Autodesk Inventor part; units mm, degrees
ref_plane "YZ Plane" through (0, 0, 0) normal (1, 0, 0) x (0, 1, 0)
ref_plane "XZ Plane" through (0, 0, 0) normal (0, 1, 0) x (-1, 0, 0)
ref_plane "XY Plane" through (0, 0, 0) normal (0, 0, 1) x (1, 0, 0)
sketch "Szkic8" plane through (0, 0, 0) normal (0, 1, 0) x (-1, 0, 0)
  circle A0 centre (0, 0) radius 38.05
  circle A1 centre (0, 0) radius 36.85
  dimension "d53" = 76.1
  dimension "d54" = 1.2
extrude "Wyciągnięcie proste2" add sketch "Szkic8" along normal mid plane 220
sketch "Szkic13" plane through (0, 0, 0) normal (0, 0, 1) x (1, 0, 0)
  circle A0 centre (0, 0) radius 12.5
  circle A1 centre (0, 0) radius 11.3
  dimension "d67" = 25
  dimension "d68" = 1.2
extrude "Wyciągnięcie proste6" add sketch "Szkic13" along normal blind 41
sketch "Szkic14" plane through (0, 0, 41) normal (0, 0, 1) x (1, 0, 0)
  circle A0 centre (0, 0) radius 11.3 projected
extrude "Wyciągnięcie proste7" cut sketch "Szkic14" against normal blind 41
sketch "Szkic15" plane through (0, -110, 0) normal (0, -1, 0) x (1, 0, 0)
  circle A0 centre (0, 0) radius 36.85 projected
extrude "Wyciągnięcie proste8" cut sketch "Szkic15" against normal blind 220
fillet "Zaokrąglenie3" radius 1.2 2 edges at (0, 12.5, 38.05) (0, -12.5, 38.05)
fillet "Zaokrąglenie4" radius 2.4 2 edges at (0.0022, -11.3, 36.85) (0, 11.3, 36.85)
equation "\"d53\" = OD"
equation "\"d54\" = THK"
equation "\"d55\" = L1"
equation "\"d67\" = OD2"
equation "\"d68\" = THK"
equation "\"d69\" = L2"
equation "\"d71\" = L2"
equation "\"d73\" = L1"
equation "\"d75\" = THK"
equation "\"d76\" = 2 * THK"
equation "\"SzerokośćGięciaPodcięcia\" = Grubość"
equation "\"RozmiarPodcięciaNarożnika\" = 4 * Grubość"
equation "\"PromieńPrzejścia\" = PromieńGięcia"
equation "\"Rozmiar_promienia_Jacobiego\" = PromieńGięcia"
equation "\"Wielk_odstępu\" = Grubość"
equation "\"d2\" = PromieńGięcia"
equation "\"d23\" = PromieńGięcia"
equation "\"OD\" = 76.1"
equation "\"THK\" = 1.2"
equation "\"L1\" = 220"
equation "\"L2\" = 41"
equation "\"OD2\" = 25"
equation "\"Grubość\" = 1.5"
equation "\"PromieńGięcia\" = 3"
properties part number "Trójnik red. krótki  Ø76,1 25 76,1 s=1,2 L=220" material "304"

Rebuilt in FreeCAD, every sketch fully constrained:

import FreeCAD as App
import Part
import Sketcher


def edges_at(feature, points):
    """Names of the edges that pass closest to the given points."""
    edges = feature.Shape.Edges
    near = lambda p: min(range(len(edges)), key=lambda i: edges[i].distToShape(Part.Vertex(*p))[0])
    return sorted({f"Edge{near(p) + 1}" for p in points})

doc = App.newDocument("Part")
body = doc.addObject("PartDesign::Body", "Body")

sketch1 = body.newObject("Sketcher::SketchObject", "Sketch")
sketch1.AttachmentSupport = (doc.getObject("XZ_Plane"), [""])
sketch1.MapMode = "FlatFace"
sketch1.addGeometry([
    Part.Circle(App.Vector(0, 0, 0), App.Vector(0, 0, 1), 38),
    Part.Circle(App.Vector(0, 0, 0), App.Vector(0, 0, 1), 37),
], False)
sketch1.addConstraint([
    Sketcher.Constraint("Coincident", 0, 3, -1, 1),
    Sketcher.Constraint("Coincident", 1, 3, -1, 1),
    Sketcher.Constraint("Diameter", 0, 76.1),
    Sketcher.Constraint("Diameter", 1, 73.7),
])
pad1 = body.newObject("PartDesign::Pad", "Pad")
pad1.Profile = sketch1
pad1.Length = 220
pad1.Midplane = True

sketch2 = body.newObject("Sketcher::SketchObject", "Sketch001")
sketch2.AttachmentSupport = (doc.getObject("XY_Plane"), [""])
sketch2.MapMode = "FlatFace"
sketch2.addGeometry([
    Part.Circle(App.Vector(0, 0, 0), App.Vector(0, 0, 1), 12),
    Part.Circle(App.Vector(0, 0, 0), App.Vector(0, 0, 1), 11),
], False)
sketch2.addConstraint([
    Sketcher.Constraint("Coincident", 0, 3, -1, 1),
    Sketcher.Constraint("Coincident", 1, 3, -1, 1),
    Sketcher.Constraint("Diameter", 0, 25.0),
    Sketcher.Constraint("Diameter", 1, 22.6),
])
pad2 = body.newObject("PartDesign::Pad", "Pad001")
pad2.Profile = sketch2
pad2.Length = 41

sketch3 = body.newObject("Sketcher::SketchObject", "Sketch002")
sketch3.AttachmentSupport = (doc.getObject("XY_Plane"), [""])
sketch3.MapMode = "FlatFace"
sketch3.AttachmentOffset = App.Placement(App.Vector(0, 0, 41), App.Rotation())
sketch3.addGeometry(Part.Circle(App.Vector(0, 0, 0), App.Vector(0, 0, 1), 11), False)
sketch3.addConstraint([
    Sketcher.Constraint("Coincident", 0, 3, -1, 1),
    Sketcher.Constraint("Diameter", 0, 22.6),
])
pocket1 = body.newObject("PartDesign::Pocket", "Pocket")
pocket1.Profile = sketch3
pocket1.Length = 41

sketch4 = body.newObject("Sketcher::SketchObject", "Sketch003")
sketch4.AttachmentSupport = (doc.getObject("XZ_Plane"), [""])
sketch4.MapMode = "FlatFace"
sketch4.AttachmentOffset = App.Placement(App.Vector(0, 0, 110), App.Rotation())
sketch4.addGeometry(Part.Circle(App.Vector(0, 0, 0), App.Vector(0, 0, 1), 37), False)
sketch4.addConstraint([
    Sketcher.Constraint("Coincident", 0, 3, -1, 1),
    Sketcher.Constraint("Diameter", 0, 73.7),
])
pocket2 = body.newObject("PartDesign::Pocket", "Pocket001")
pocket2.Profile = sketch4
pocket2.Length = 220
doc.recompute()

fillet = body.newObject("PartDesign::Fillet", "Fillet")
fillet.Base = (pocket2, edges_at(pocket2, [(0, 12.5, 38.05), (0, -12.5, 38.05)]))
fillet.Radius = 1.2
doc.recompute()

fillet2 = body.newObject("PartDesign::Fillet", "Fillet001")
fillet2.Base = (fillet, edges_at(fillet, [(0.002, -11.3, 36.85), (0, 11.3, 36.85)]))
fillet2.Radius = 2.4

doc.recompute()
